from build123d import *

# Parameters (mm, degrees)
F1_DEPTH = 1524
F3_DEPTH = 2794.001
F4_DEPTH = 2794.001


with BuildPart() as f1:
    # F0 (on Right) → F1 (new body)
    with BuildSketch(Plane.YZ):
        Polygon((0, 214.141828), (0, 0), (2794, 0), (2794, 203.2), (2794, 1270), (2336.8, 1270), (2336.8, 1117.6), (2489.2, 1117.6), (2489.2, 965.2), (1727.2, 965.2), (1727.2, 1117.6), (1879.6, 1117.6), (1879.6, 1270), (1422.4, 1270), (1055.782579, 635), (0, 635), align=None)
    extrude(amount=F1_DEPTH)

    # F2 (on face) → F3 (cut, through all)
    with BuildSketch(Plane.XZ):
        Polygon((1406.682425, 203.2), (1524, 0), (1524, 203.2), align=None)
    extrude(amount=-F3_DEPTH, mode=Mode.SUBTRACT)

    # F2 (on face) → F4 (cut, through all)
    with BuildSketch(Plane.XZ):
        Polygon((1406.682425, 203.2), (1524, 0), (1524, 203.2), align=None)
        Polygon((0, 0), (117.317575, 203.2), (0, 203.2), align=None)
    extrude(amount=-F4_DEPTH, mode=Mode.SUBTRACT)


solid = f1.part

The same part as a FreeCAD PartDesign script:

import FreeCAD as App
import Part
import Sketcher
Q = App.Units.Quantity

doc = App.newDocument("Part")
body = doc.addObject("PartDesign::Body", "Body")

# Sketch on YZ plane
sketch1 = body.newObject("Sketcher::SketchObject", "Sketch")
sketch1.AttachmentSupport = (doc.getObject("YZ_Plane"), [""])
sketch1.MapMode = "FlatFace"
sketch1.addGeometry(Part.LineSegment(App.Vector(0, 0, 0), App.Vector(2794, 0, 0)), False)
sketch1.addGeometry(Part.LineSegment(App.Vector(2794, 0, 0), App.Vector(2794, 1270, 0)), False)
sketch1.addGeometry(Part.LineSegment(App.Vector(2794, 1270, 0), App.Vector(2337, 1270, 0)), False)
sketch1.addGeometry(Part.LineSegment(App.Vector(2337, 1270, 0), App.Vector(2337, 1118, 0)), False)
sketch1.addGeometry(Part.LineSegment(App.Vector(2337, 1118, 0), App.Vector(2489, 1118, 0)), False)
sketch1.addGeometry(Part.LineSegment(App.Vector(2489, 1118, 0), App.Vector(2489, 965, 0)), False)
sketch1.addGeometry(Part.LineSegment(App.Vector(2489, 965, 0), App.Vector(1727, 965, 0)), False)
sketch1.addGeometry(Part.LineSegment(App.Vector(1727, 965, 0), App.Vector(1727, 1118, 0)), False)
sketch1.addGeometry(Part.LineSegment(App.Vector(1727, 1118, 0), App.Vector(1880, 1118, 0)), False)
sketch1.addGeometry(Part.LineSegment(App.Vector(1880, 1118, 0), App.Vector(1880, 1270, 0)), False)
sketch1.addGeometry(Part.LineSegment(App.Vector(1880, 1270, 0), App.Vector(1422, 1270, 0)), False)
sketch1.addGeometry(Part.LineSegment(App.Vector(1422, 1270, 0), App.Vector(1056, 635, 0)), False)
sketch1.addGeometry(Part.LineSegment(App.Vector(1056, 635, 0), App.Vector(0, 635, 0)), False)
sketch1.addGeometry(Part.LineSegment(App.Vector(0, 635, 0), App.Vector(0, 0, 0)), False)
sketch1.addConstraint(Sketcher.Constraint("Coincident", 0, 2, 1, 1))
sketch1.addConstraint(Sketcher.Constraint("Coincident", 1, 2, 2, 1))
sketch1.addConstraint(Sketcher.Constraint("Coincident", 2, 2, 3, 1))
sketch1.addConstraint(Sketcher.Constraint("Coincident", 3, 2, 4, 1))
sketch1.addConstraint(Sketcher.Constraint("Coincident", 4, 2, 5, 1))
sketch1.addConstraint(Sketcher.Constraint("Coincident", 5, 2, 6, 1))
sketch1.addConstraint(Sketcher.Constraint("Coincident", 6, 2, 7, 1))
sketch1.addConstraint(Sketcher.Constraint("Coincident", 7, 2, 8, 1))
sketch1.addConstraint(Sketcher.Constraint("Coincident", 8, 2, 9, 1))
sketch1.addConstraint(Sketcher.Constraint("Coincident", 9, 2, 10, 1))
sketch1.addConstraint(Sketcher.Constraint("Coincident", 10, 2, 11, 1))
sketch1.addConstraint(Sketcher.Constraint("Coincident", 11, 2, 12, 1))
sketch1.addConstraint(Sketcher.Constraint("Coincident", 12, 2, 13, 1))
sketch1.addConstraint(Sketcher.Constraint("Coincident", 13, 2, 0, 1))
sketch1.addConstraint(Sketcher.Constraint("Horizontal", 0))
sketch1.addConstraint(Sketcher.Constraint("Vertical", 1))
sketch1.addConstraint(Sketcher.Constraint("Horizontal", 2))
sketch1.addConstraint(Sketcher.Constraint("Vertical", 3))
sketch1.addConstraint(Sketcher.Constraint("Horizontal", 4))
sketch1.addConstraint(Sketcher.Constraint("Vertical", 5))
sketch1.addConstraint(Sketcher.Constraint("Horizontal", 6))
sketch1.addConstraint(Sketcher.Constraint("Vertical", 7))
sketch1.addConstraint(Sketcher.Constraint("Horizontal", 8))
sketch1.addConstraint(Sketcher.Constraint("Vertical", 9))
sketch1.addConstraint(Sketcher.Constraint("Horizontal", 10))
sketch1.addConstraint(Sketcher.Constraint("Horizontal", 12))
sketch1.addConstraint(Sketcher.Constraint("Vertical", 13))
sketch1.addConstraint(Sketcher.Constraint("Coincident", 13, 2, -1, 1))
sketch1.addConstraint(Sketcher.Constraint("Horizontal", 4, 2, 7, 2))
sketch1.addConstraint(Sketcher.Constraint("Horizontal", 2, 2, 9, 2))
sketch1.addConstraint(Sketcher.Constraint("Equal", 4, 8))
sketch1.addConstraint(Sketcher.Constraint("Equal", 2, 10))
sketch1.addConstraint(Sketcher.Constraint("Equal", 8, 3))
sketch1.addConstraint(Sketcher.Constraint("Equal", 3, 5))
sketch1.addConstraint(Sketcher.Constraint("DistanceX", 0, 1, 0, 2, Q("110 in")))
sketch1.addConstraint(Sketcher.Constraint("DistanceX", 2, 2, 2, 1, Q("18 in")))
sketch1.addConstraint(Sketcher.Constraint("DistanceX", 4, 1, 4, 2, Q("6 in")))
sketch1.addConstraint(Sketcher.Constraint("DistanceX", 6, 2, 6, 1, Q("30 in")))
sketch1.addConstraint(Sketcher.Constraint("DistanceY", 1, 1, 1, 2, Q("50 in")))
sketch1.addConstraint(Sketcher.Constraint("DistanceY", 13, 2, 13, 1, Q("25 in")))
sketch1.addConstraint(Sketcher.Constraint("Angle", 11, Q("-120 deg")))
pad1 = body.newObject("PartDesign::Pad", "Pad")
pad1.Profile = sketch1
pad1.Length = Q("60 in")

# Sketch on XZ plane
sketch2 = body.newObject("Sketcher::SketchObject", "Sketch001")
sketch2.AttachmentSupport = (doc.getObject("XZ_Plane"), [""])
sketch2.MapMode = "FlatFace"
sketch2.addGeometry(Part.LineSegment(App.Vector(1407, 203, 0), App.Vector(1524, 0, 0)), False)
sketch2.addGeometry(Part.LineSegment(App.Vector(1524, 0, 0), App.Vector(1524, 203, 0)), False)
sketch2.addGeometry(Part.LineSegment(App.Vector(1524, 203, 0), App.Vector(1407, 203, 0)), False)
sketch2.addConstraint(Sketcher.Constraint("Coincident", 0, 2, 1, 1))
sketch2.addConstraint(Sketcher.Constraint("Coincident", 1, 2, 2, 1))
sketch2.addConstraint(Sketcher.Constraint("Coincident", 2, 2, 0, 1))
sketch2.addConstraint(Sketcher.Constraint("Vertical", 1))
sketch2.addConstraint(Sketcher.Constraint("Horizontal", 2))
sketch2.addConstraint(Sketcher.Constraint("PointOnObject", 0, 2, -1))
sketch2.addConstraint(Sketcher.Constraint("DistanceY", 1, 1, 1, 2, Q("8 in")))
sketch2.addConstraint(Sketcher.Constraint("DistanceX", -1, 1, 0, 2, Q("60 in")))
sketch2.addConstraint(Sketcher.Constraint("Angle", 0, Q("-60 deg")))
pocket1 = body.newObject("PartDesign::Pocket", "Pocket")
pocket1.Profile = sketch2
pocket1.Type = "ThroughAll"

# Sketch on XZ plane
sketch3 = body.newObject("Sketcher::SketchObject", "Sketch002")
sketch3.AttachmentSupport = (doc.getObject("XZ_Plane"), [""])
sketch3.MapMode = "FlatFace"
sketch3.addGeometry(Part.LineSegment(App.Vector(1407, 203, 0), App.Vector(1524, 0, 0)), False)
sketch3.addGeometry(Part.LineSegment(App.Vector(1524, 0, 0), App.Vector(1524, 203, 0)), False)
sketch3.addGeometry(Part.LineSegment(App.Vector(1524, 203, 0), App.Vector(1407, 203, 0)), False)
sketch3.addGeometry(Part.LineSegment(App.Vector(0, 0, 0), App.Vector(117, 203, 0)), False)
sketch3.addGeometry(Part.LineSegment(App.Vector(117, 203, 0), App.Vector(0, 203, 0)), False)
sketch3.addGeometry(Part.LineSegment(App.Vector(0, 203, 0), App.Vector(0, 0, 0)), False)
sketch3.addConstraint(Sketcher.Constraint("Coincident", 0, 2, 1, 1))
sketch3.addConstraint(Sketcher.Constraint("Coincident", 1, 2, 2, 1))
sketch3.addConstraint(Sketcher.Constraint("Coincident", 2, 2, 0, 1))
sketch3.addConstraint(Sketcher.Constraint("Coincident", 3, 2, 4, 1))
sketch3.addConstraint(Sketcher.Constraint("Coincident", 4, 2, 5, 1))
sketch3.addConstraint(Sketcher.Constraint("Coincident", 5, 2, 3, 1))
sketch3.addConstraint(Sketcher.Constraint("Vertical", 1))
sketch3.addConstraint(Sketcher.Constraint("Horizontal", 2))
sketch3.addConstraint(Sketcher.Constraint("Horizontal", 4))
sketch3.addConstraint(Sketcher.Constraint("Vertical", 5))
sketch3.addConstraint(Sketcher.Constraint("Coincident", 5, 2, -1, 1))
sketch3.addConstraint(Sketcher.Constraint("PointOnObject", 0, 2, -1))
sketch3.addConstraint(Sketcher.Constraint("Horizontal", 2, 2, 3, 2))
sketch3.addConstraint(Sketcher.Constraint("Equal", 2, 4))
sketch3.addConstraint(Sketcher.Constraint("DistanceY", 1, 1, 1, 2, Q("8 in")))
sketch3.addConstraint(Sketcher.Constraint("DistanceX", -1, 1, 0, 2, Q("60 in")))
sketch3.addConstraint(Sketcher.Constraint("Angle", 0, Q("-60 deg")))
pocket2 = body.newObject("PartDesign::Pocket", "Pocket001")
pocket2.Profile = sketch3
pocket2.Type = "ThroughAll"

doc.recompute()
